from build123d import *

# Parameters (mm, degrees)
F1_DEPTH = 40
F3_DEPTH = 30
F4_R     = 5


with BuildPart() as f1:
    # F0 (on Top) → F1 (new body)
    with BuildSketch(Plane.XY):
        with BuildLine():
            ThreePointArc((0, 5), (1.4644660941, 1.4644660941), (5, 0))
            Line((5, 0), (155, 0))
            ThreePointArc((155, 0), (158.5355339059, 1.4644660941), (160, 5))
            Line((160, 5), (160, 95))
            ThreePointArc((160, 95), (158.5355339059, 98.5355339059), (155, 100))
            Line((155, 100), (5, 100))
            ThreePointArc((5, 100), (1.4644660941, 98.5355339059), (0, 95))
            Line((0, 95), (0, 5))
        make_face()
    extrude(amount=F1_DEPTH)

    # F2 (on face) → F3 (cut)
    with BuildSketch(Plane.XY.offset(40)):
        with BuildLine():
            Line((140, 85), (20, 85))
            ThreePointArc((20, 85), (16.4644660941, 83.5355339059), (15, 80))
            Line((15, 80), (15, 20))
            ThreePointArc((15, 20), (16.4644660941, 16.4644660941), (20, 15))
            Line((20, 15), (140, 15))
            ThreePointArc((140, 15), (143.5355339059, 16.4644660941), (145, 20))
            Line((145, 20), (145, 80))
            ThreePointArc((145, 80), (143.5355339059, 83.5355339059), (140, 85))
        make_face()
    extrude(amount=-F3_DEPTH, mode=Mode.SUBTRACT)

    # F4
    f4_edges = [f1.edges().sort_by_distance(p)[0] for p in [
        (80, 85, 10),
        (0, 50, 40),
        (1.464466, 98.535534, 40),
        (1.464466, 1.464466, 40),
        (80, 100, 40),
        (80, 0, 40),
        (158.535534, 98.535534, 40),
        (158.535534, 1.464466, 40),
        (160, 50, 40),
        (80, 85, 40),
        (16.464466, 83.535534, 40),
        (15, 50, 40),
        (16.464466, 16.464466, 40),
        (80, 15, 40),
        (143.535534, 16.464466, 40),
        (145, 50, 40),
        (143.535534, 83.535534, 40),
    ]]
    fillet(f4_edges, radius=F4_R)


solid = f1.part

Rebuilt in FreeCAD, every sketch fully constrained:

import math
import FreeCAD as App
import Part
import Sketcher

V = App.Vector
Q = App.Units.Quantity


def edges_at(feature, points):
    """Names of the edges that pass closest to the given points."""
    edges = feature.Shape.Edges
    near = lambda p: min(range(len(edges)), key=lambda i: edges[i].distToShape(Part.Vertex(*p))[0])
    return sorted({f"Edge{near(p) + 1}" for p in points})

doc = App.newDocument("Part")
params = doc.addObject("Spreadsheet::Sheet", "Params")
for row, (alias, value) in enumerate([
    ("sketch1_radius", "5 mm"),
    ("sketch1_width", "150 mm"),
    ("sketch1_height", "90 mm"),
    ("pad1_length", "40 mm"),
    ("sketch2_radius", "5 mm"),
    ("sketch2_width", "120 mm"),
    ("sketch2_height", "60 mm"),
    ("pocket1_length", "30 mm"),
    ("fillet_radius", "5 mm"),
], start=1):
    params.set(f"A{row}", alias)
    params.set(f"B{row}", "=" + value)
    params.setAlias(f"B{row}", alias)

body = doc.addObject("PartDesign::Body", "Body")

sketch1 = doc.addObject("Sketcher::SketchObject", "Sketch")
body.addObject(sketch1)
sketch1.AttachmentSupport = (doc.XY_Plane, [""])
sketch1.MapMode = "FlatFace"
sketch1.addGeometry(Part.ArcOfCircle(Part.Circle(V(5, 5, 0), V(0, 0, 1), 5), math.radians(180), math.radians(270)), False)
sketch1.addGeometry(Part.LineSegment(V(5, 0, 0), V(155, 0, 0)), False)
sketch1.addGeometry(Part.ArcOfCircle(Part.Circle(V(155, 5, 0), V(0, 0, 1), 5), math.radians(-90), math.radians(0)), False)
sketch1.addGeometry(Part.LineSegment(V(160, 5, 0), V(160, 95, 0)), False)
sketch1.addGeometry(Part.ArcOfCircle(Part.Circle(V(155, 95, 0), V(0, 0, 1), 5), math.radians(0), math.radians(90)), False)
sketch1.addGeometry(Part.LineSegment(V(155, 100, 0), V(5, 100, 0)), False)
sketch1.addGeometry(Part.ArcOfCircle(Part.Circle(V(5, 95, 0), V(0, 0, 1), 5), math.radians(90), math.radians(180)), False)
sketch1.addGeometry(Part.LineSegment(V(0, 95, 0), V(0, 5, 0)), False)
sketch1.addConstraint(Sketcher.Constraint("Tangent", 0, 2, 1, 1))
sketch1.addConstraint(Sketcher.Constraint("Tangent", 1, 2, 2, 1))
sketch1.addConstraint(Sketcher.Constraint("Tangent", 2, 2, 3, 1))
sketch1.addConstraint(Sketcher.Constraint("Tangent", 3, 2, 4, 1))
sketch1.addConstraint(Sketcher.Constraint("Tangent", 4, 2, 5, 1))
sketch1.addConstraint(Sketcher.Constraint("Tangent", 5, 2, 6, 1))
sketch1.addConstraint(Sketcher.Constraint("Tangent", 6, 2, 7, 1))
sketch1.addConstraint(Sketcher.Constraint("Tangent", 7, 2, 0, 1))
sketch1.addConstraint(Sketcher.Constraint("Horizontal", 1))
sketch1.addConstraint(Sketcher.Constraint("Vertical", 3))
sketch1.addConstraint(Sketcher.Constraint("Horizontal", 5))
sketch1.addConstraint(Sketcher.Constraint("Vertical", 7))
sketch1.addConstraint(Sketcher.Constraint("Equal", 0, 2))
sketch1.addConstraint(Sketcher.Constraint("Equal", 2, 4))
sketch1.addConstraint(Sketcher.Constraint("Equal", 4, 6))
sketch1.addConstraint(Sketcher.Constraint("PointOnObject", 0, 2, -1))
sketch1.addConstraint(Sketcher.Constraint("PointOnObject", 6, 2, -2))
sketch1.addConstraint(Sketcher.Constraint("Radius", 0, Q("5 mm")))
sketch1.addConstraint(Sketcher.Constraint("DistanceX", 1, 1, 1, 2, Q("150 mm")))
sketch1.addConstraint(Sketcher.Constraint("DistanceY", 3, 1, 3, 2, Q("90 mm")))
sketch1.setExpression("Constraints[17]", "Params.sketch1_radius")
sketch1.setExpression("Constraints[18]", "Params.sketch1_width")
sketch1.setExpression("Constraints[19]", "Params.sketch1_height")
pad1 = doc.addObject("PartDesign::Pad", "Pad")
body.addObject(pad1)
pad1.Profile = sketch1
pad1.setExpression("Length", "Params.pad1_length")

sketch2 = doc.addObject("Sketcher::SketchObject", "Sketch001")
body.addObject(sketch2)
sketch2.AttachmentSupport = (doc.XY_Plane, [""])
sketch2.MapMode = "FlatFace"
sketch2.AttachmentOffset = App.Placement(V(0, 0, 40), App.Rotation())
sketch2.addGeometry(Part.LineSegment(V(140, 85, 0), V(20, 85, 0)), False)
sketch2.addGeometry(Part.ArcOfCircle(Part.Circle(V(20, 80, 0), V(0, 0, 1), 5), math.radians(90), math.radians(180)), False)
sketch2.addGeometry(Part.LineSegment(V(15, 80, 0), V(15, 20, 0)), False)
sketch2.addGeometry(Part.ArcOfCircle(Part.Circle(V(20, 20, 0), V(0, 0, 1), 5), math.radians(180), math.radians(270)), False)
sketch2.addGeometry(Part.LineSegment(V(20, 15, 0), V(140, 15, 0)), False)
sketch2.addGeometry(Part.ArcOfCircle(Part.Circle(V(140, 20, 0), V(0, 0, 1), 5), math.radians(-90), math.radians(0)), False)
sketch2.addGeometry(Part.LineSegment(V(145, 20, 0), V(145, 80, 0)), False)
sketch2.addGeometry(Part.ArcOfCircle(Part.Circle(V(140, 80, 0), V(0, 0, 1), 5), math.radians(0), math.radians(90)), False)
sketch2.addConstraint(Sketcher.Constraint("Tangent", 0, 2, 1, 1))
sketch2.addConstraint(Sketcher.Constraint("Tangent", 1, 2, 2, 1))
sketch2.addConstraint(Sketcher.Constraint("Tangent", 2, 2, 3, 1))
sketch2.addConstraint(Sketcher.Constraint("Tangent", 3, 2, 4, 1))
sketch2.addConstraint(Sketcher.Constraint("Tangent", 4, 2, 5, 1))
sketch2.addConstraint(Sketcher.Constraint("Tangent", 5, 2, 6, 1))
sketch2.addConstraint(Sketcher.Constraint("Tangent", 6, 2, 7, 1))
sketch2.addConstraint(Sketcher.Constraint("Tangent", 7, 2, 0, 1))
sketch2.addConstraint(Sketcher.Constraint("Horizontal", 0))
sketch2.addConstraint(Sketcher.Constraint("Vertical", 2))
sketch2.addConstraint(Sketcher.Constraint("Horizontal", 4))
sketch2.addConstraint(Sketcher.Constraint("Vertical", 6))
sketch2.addConstraint(Sketcher.Constraint("Equal", 1, 3))
sketch2.addConstraint(Sketcher.Constraint("Equal", 3, 5))
sketch2.addConstraint(Sketcher.Constraint("Equal", 5, 7))
sketch2.addConstraint(Sketcher.Constraint("Radius", 1, Q("5 mm")))
sketch2.addConstraint(Sketcher.Constraint("DistanceX", 0, 2, 0, 1, Q("120 mm")))
sketch2.addConstraint(Sketcher.Constraint("DistanceY", 2, 2, 2, 1, Q("60 mm")))
sketch2.addConstraint(Sketcher.Constraint("DistanceX", -1, 1, 1, 3, Q("20 mm")))
sketch2.addConstraint(Sketcher.Constraint("DistanceY", -1, 1, 1, 3, Q("80 mm")))
sketch2.setExpression("Constraints[15]", "Params.sketch2_radius")
sketch2.setExpression("Constraints[16]", "Params.sketch2_width")
sketch2.setExpression("Constraints[17]", "Params.sketch2_height")
pocket1 = doc.addObject("PartDesign::Pocket", "Pocket")
body.addObject(pocket1)
pocket1.Profile = sketch2
pocket1.setExpression("Length", "Params.pocket1_length")
doc.recompute()

fillet = doc.addObject("PartDesign::Fillet", "Fillet")
body.addObject(fillet)
fillet.Base = (pocket1, edges_at(pocket1, [
    (80, 85, 10),
    (0, 50, 40),
    (1.464, 98.536, 40),
    (1.464, 1.464, 40),
    (80, 100, 40),
    (80, 0, 40),
    (158.536, 98.536, 40),
    (158.536, 1.464, 40),
    (160, 50, 40),
    (80, 85, 40),
    (16.464, 83.536, 40),
    (15, 50, 40),
    (16.464, 16.464, 40),
    (80, 15, 40),
    (143.536, 16.464, 40),
    (145, 50, 40),
    (143.536, 83.536, 40),
]))
fillet.setExpression("Radius", "Params.fillet_radius")

doc.recompute()
